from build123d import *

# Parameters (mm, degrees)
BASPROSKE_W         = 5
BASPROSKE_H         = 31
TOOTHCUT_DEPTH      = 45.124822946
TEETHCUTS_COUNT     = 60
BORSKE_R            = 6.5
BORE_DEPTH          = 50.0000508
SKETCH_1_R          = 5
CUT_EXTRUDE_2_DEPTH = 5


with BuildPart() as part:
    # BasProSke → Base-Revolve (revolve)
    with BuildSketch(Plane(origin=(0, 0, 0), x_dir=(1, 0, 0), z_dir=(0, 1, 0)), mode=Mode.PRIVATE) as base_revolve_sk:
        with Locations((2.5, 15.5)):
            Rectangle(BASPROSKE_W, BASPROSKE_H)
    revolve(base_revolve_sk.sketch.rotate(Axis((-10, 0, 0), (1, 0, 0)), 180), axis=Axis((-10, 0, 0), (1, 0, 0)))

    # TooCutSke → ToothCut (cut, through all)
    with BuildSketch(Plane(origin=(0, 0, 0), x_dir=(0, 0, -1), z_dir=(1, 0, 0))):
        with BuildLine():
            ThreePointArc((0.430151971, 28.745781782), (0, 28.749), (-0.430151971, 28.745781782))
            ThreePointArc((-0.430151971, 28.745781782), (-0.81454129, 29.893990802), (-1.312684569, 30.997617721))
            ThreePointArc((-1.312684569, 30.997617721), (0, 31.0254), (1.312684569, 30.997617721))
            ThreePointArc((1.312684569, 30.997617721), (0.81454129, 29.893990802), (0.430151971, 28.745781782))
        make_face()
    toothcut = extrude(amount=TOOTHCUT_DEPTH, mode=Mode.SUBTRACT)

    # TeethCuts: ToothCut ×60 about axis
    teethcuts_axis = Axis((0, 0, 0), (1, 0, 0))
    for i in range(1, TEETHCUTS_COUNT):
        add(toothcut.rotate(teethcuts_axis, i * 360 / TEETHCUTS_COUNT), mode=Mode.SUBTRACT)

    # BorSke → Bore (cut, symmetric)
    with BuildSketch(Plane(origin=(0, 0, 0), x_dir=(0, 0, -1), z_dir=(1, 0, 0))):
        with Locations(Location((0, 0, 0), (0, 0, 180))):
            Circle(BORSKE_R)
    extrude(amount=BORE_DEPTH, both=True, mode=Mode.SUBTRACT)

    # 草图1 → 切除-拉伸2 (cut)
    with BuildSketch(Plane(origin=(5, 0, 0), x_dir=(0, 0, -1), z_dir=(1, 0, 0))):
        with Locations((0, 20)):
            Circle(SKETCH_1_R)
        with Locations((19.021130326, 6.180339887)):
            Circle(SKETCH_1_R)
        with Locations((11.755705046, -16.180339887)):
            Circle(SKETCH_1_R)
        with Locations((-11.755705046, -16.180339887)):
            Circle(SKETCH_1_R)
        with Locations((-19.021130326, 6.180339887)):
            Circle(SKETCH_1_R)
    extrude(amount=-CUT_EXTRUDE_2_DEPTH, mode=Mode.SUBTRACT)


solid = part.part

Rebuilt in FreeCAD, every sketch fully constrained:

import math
import FreeCAD as App
import Part
import Sketcher

V = App.Vector

doc = App.newDocument("Part")
body = doc.addObject("PartDesign::Body", "Body")

# Sketch on XZ plane
sketch1 = doc.addObject("Sketcher::SketchObject", "Sketch")
body.addObject(sketch1)
sketch1.AttachmentSupport = (doc.XZ_Plane, [""])
sketch1.MapMode = "FlatFace"
sketch1.addGeometry([
    Part.LineSegment(V(0, -31, 0), V(0, 0, 0)),
    Part.LineSegment(V(0, 0, 0), V(5, 0, 0)),
    Part.LineSegment(V(5, 0, 0), V(5, -31, 0)),
    Part.LineSegment(V(5, -31, 0), V(0, -31, 0)),
], False)
sketch1.addConstraint([
    Sketcher.Constraint("Coincident", 0, 2, 1, 1),
    Sketcher.Constraint("Coincident", 1, 2, 2, 1),
    Sketcher.Constraint("Coincident", 2, 2, 3, 1),
    Sketcher.Constraint("Coincident", 3, 2, 0, 1),
    Sketcher.Constraint("Vertical", 0),
    Sketcher.Constraint("Horizontal", 1),
    Sketcher.Constraint("Vertical", 2),
    Sketcher.Constraint("Horizontal", 3),
    Sketcher.Constraint("Coincident", 0, 2, -1, 1),
    Sketcher.Constraint("DistanceX", 1, 1, 1, 2, 5.0),
    Sketcher.Constraint("DistanceY", 0, 1, 0, 2, 31.0),
])
revolution = doc.addObject("PartDesign::Revolution", "Revolution")
body.addObject(revolution)
revolution.Profile = sketch1
revolution.ReferenceAxis = (sketch1, ["H_Axis"])
revolution.Angle = 360

# Sketch on YZ plane
sketch2 = doc.addObject("Sketcher::SketchObject", "Sketch001")
body.addObject(sketch2)
sketch2.AttachmentSupport = (doc.YZ_Plane, [""])
sketch2.MapMode = "FlatFace"
sketch2.addGeometry([
    Part.ArcOfCircle(Part.Circle(V(0.000004, 0, 0), V(0, 0, 1), 28.748996), math.radians(-0.85731), math.radians(0.85731)),
    Part.ArcOfCircle(Part.Circle(V(25.515264, -11.98713, 0), V(0, 0, 1), 12), math.radians(62.815145), math.radians(74.382749)),
    Part.ArcOfCircle(Part.Circle(V(0, 0, 0), V(0, 0, 1), 31.0254), math.radians(-2.424908), math.radians(2.424908)),
    Part.ArcOfCircle(Part.Circle(V(25.515264, 11.98713, 0), V(0, 0, 1), 12), math.radians(-74.382749), math.radians(-62.815145)),
], False)
sketch2.addConstraint([
    Sketcher.Constraint("Coincident", 0, 1, 1, 2),
    Sketcher.Constraint("Coincident", 1, 1, 2, 1),
    Sketcher.Constraint("Coincident", 2, 2, 3, 2),
    Sketcher.Constraint("Coincident", 3, 1, 0, 2),
    Sketcher.Constraint("Coincident", 0, 3, -1, 1),
    Sketcher.Constraint("Coincident", 2, 3, -1, 1),
    Sketcher.Constraint("Equal", 1, 3),
    Sketcher.Constraint("Symmetric", 1, 3, 3, 3, -1),
    Sketcher.Constraint("Radius", 1, 12.0),
    Sketcher.Constraint("Radius", 2, 31.0254),
    Sketcher.Constraint("Radius", 0, 28.748996),
    Sketcher.Constraint("DistanceY", 1, 3, -1, 1, 11.98713),
    Sketcher.Constraint("DistanceY", 0, 1, -1, 1, 0.430152),
])
pocket1 = doc.addObject("PartDesign::Pocket", "Pocket")
body.addObject(pocket1)
pocket1.Profile = sketch2
pocket1.Type = "ThroughAll"
pocket1.Reversed = True
doc.recompute()

polarpattern = doc.addObject("PartDesign::PolarPattern", "PolarPattern")
body.addObject(polarpattern)
polarpattern.Originals = [pocket1]
polarpattern.Axis = (doc.X_Axis, [""])
polarpattern.Angle = 360
polarpattern.Occurrences = 60
body.Tip = polarpattern

# Sketch on YZ plane
sketch3 = doc.addObject("Sketcher::SketchObject", "Sketch002")
body.addObject(sketch3)
sketch3.AttachmentSupport = (doc.YZ_Plane, [""])
sketch3.MapMode = "FlatFace"
sketch3.addGeometry(Part.Circle(V(0, 0, 0), V(0, 0, 1), 6.5), False)
sketch3.addConstraint([
    Sketcher.Constraint("Coincident", 0, 3, -1, 1),
    Sketcher.Constraint("Diameter", 0, 13.0),
])
pocket2 = doc.addObject("PartDesign::Pocket", "Pocket001")
body.addObject(pocket2)
pocket2.Profile = sketch3
pocket2.Length = 100.000102
pocket2.Midplane = True

# Sketch on YZ plane
sketch4 = doc.addObject("Sketcher::SketchObject", "Sketch003")
body.addObject(sketch4)
sketch4.AttachmentSupport = (doc.YZ_Plane, [""])
sketch4.MapMode = "FlatFace"
sketch4.AttachmentOffset = App.Placement(V(0, 0, 5), App.Rotation())
sketch4.addGeometry([
    Part.Circle(V(20, 0, 0), V(0, 0, 1), 5),  # 0
    Part.Circle(V(6.18034, -19.02113, 0), V(0, 0, 1), 5),  # 1
    Part.Circle(V(-16.18034, -11.755705, 0), V(0, 0, 1), 5),  # 2
    Part.Circle(V(-16.18034, 11.755705, 0), V(0, 0, 1), 5),  # 3
    Part.Circle(V(6.18034, 19.02113, 0), V(0, 0, 1), 5),  # 4
], False)
sketch4.addConstraint([
    Sketcher.Constraint("Equal", 0, 1),
    Sketcher.Constraint("Equal", 1, 2),
    Sketcher.Constraint("Equal", 2, 3),
    Sketcher.Constraint("Equal", 3, 4),
    Sketcher.Constraint("Symmetric", 2, 3, 3, 3, -1),
    Sketcher.Constraint("Symmetric", 1, 3, 4, 3, -1),
    Sketcher.Constraint("PointOnObject", 0, 3, -1),
    Sketcher.Constraint("Diameter", 0, 10.0),
    Sketcher.Constraint("DistanceX", -1, 1, 0, 3, 20.0),
    Sketcher.Constraint("DistanceX", -1, 1, 1, 3, 6.18034),
    Sketcher.Constraint("DistanceY", 1, 3, -1, 1, 19.02113),
    Sketcher.Constraint("DistanceX", 2, 3, -1, 1, 16.18034),
    Sketcher.Constraint("DistanceY", 2, 3, 3, 3, 23.51141),
])
pocket3 = doc.addObject("PartDesign::Pocket", "Pocket002")
body.addObject(pocket3)
pocket3.Profile = sketch4
pocket3.Length = 5

doc.recompute()
